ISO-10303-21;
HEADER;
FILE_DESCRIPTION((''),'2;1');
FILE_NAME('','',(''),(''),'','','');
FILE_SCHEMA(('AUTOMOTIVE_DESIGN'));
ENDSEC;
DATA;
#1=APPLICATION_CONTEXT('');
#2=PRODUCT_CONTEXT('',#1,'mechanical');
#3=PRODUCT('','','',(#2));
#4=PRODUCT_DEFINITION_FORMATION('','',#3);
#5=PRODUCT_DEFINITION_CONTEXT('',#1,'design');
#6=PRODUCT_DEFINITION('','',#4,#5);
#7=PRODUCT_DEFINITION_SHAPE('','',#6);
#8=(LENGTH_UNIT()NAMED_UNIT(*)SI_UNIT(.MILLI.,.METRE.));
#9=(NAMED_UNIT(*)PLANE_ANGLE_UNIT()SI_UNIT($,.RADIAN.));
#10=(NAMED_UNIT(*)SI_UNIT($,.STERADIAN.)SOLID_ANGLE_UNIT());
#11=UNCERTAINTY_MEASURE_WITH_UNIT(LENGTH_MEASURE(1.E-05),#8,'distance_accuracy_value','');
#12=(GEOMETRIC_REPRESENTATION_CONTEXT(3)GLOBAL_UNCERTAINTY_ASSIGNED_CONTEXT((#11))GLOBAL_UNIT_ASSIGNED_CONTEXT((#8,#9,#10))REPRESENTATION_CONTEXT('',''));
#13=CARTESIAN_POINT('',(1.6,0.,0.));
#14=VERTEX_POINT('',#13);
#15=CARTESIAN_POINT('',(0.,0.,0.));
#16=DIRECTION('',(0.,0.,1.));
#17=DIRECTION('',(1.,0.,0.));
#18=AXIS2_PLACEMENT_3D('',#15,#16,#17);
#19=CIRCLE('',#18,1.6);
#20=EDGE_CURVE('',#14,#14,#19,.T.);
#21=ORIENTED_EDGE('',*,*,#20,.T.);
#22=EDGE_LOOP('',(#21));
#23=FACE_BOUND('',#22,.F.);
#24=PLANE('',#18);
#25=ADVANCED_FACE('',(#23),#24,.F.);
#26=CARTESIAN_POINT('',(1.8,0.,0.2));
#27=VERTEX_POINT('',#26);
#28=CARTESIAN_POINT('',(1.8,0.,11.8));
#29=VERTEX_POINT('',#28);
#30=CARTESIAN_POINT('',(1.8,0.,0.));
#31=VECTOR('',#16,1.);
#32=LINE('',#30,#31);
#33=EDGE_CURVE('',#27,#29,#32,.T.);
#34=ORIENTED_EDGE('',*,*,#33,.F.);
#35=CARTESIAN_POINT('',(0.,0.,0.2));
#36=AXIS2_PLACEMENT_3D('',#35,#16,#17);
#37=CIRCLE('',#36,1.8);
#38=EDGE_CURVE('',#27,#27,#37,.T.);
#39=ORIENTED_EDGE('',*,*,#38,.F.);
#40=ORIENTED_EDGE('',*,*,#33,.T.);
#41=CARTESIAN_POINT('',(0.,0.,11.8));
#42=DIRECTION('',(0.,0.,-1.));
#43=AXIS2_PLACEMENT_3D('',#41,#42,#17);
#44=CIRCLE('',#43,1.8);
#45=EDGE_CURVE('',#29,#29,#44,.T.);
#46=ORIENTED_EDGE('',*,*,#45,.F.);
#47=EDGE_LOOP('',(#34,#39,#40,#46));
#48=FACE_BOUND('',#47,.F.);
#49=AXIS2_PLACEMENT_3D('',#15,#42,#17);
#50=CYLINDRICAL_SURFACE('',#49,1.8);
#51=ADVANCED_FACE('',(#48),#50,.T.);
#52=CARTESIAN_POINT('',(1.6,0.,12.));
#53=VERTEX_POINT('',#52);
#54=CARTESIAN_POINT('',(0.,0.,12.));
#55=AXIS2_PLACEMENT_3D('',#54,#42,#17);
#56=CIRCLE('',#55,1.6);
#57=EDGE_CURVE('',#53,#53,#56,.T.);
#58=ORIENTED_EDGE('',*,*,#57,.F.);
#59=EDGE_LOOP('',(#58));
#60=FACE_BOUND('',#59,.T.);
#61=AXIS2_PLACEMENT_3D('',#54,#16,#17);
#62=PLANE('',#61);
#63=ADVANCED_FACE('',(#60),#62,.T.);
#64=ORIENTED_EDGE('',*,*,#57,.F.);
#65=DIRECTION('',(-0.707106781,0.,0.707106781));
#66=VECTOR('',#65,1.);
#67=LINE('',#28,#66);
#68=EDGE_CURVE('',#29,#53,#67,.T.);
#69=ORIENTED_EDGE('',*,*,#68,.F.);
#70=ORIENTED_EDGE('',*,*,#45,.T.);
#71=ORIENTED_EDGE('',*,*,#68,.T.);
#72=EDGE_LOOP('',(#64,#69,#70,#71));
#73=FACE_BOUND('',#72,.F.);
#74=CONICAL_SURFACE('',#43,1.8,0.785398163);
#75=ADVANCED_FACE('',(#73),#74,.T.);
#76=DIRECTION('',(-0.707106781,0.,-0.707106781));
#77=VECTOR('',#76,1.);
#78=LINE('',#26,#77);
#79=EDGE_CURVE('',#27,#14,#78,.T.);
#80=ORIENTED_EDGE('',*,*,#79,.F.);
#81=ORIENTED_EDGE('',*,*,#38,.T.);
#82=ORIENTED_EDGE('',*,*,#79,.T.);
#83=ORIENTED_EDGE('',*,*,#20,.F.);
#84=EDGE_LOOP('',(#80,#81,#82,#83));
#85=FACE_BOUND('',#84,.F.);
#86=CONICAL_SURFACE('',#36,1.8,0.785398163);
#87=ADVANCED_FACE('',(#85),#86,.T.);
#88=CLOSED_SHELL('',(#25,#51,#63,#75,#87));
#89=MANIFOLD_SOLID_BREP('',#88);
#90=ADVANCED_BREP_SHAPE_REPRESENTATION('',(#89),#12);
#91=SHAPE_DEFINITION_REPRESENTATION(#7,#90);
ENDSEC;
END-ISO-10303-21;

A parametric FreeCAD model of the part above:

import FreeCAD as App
import Part
import Sketcher

V = App.Vector
Q = App.Units.Quantity


def edges_at(feature, points):
    """Names of the edges that pass closest to the given points."""
    edges = feature.Shape.Edges
    near = lambda p: min(range(len(edges)), key=lambda i: edges[i].distToShape(Part.Vertex(*p))[0])
    return sorted({f"Edge{near(p) + 1}" for p in points})

doc = App.newDocument("Part")
params = doc.addObject("Spreadsheet::Sheet", "Params")
for row, (alias, value) in enumerate([
    ("sketch1_diameter", "3.6 mm"),
    ("pad1_length", "12 mm"),
    ("chamfer_size", "0.2 mm"),
], start=1):
    params.set(f"A{row}", alias)
    params.set(f"B{row}", "=" + value)
    params.setAlias(f"B{row}", alias)

body = doc.addObject("PartDesign::Body", "Body")

sketch1 = body.newObject("Sketcher::SketchObject", "Sketch")
sketch1.AttachmentSupport = (doc.getObject("XY_Plane"), [""])
sketch1.MapMode = "FlatFace"
sketch1.addGeometry(Part.Circle(V(0, 0, 0), V(0, 0, 1), 1.8), False)
sketch1.addConstraint([
    Sketcher.Constraint("Coincident", 0, 3, -1, 1),
    Sketcher.Constraint("Diameter", 0, Q("3.6 mm")),
])
sketch1.setExpression("Constraints[1]", "Params.sketch1_diameter")
pad1 = body.newObject("PartDesign::Pad", "Pad")
pad1.Profile = sketch1
pad1.setExpression("Length", "Params.pad1_length")
doc.recompute()

chamfer = body.newObject("PartDesign::Chamfer", "Chamfer")
chamfer.Base = (pad1, edges_at(pad1, [(-1.8, 0, 12), (-1.8, 0, 0)]))
chamfer.setExpression("Size", "Params.chamfer_size")

doc.recompute()
